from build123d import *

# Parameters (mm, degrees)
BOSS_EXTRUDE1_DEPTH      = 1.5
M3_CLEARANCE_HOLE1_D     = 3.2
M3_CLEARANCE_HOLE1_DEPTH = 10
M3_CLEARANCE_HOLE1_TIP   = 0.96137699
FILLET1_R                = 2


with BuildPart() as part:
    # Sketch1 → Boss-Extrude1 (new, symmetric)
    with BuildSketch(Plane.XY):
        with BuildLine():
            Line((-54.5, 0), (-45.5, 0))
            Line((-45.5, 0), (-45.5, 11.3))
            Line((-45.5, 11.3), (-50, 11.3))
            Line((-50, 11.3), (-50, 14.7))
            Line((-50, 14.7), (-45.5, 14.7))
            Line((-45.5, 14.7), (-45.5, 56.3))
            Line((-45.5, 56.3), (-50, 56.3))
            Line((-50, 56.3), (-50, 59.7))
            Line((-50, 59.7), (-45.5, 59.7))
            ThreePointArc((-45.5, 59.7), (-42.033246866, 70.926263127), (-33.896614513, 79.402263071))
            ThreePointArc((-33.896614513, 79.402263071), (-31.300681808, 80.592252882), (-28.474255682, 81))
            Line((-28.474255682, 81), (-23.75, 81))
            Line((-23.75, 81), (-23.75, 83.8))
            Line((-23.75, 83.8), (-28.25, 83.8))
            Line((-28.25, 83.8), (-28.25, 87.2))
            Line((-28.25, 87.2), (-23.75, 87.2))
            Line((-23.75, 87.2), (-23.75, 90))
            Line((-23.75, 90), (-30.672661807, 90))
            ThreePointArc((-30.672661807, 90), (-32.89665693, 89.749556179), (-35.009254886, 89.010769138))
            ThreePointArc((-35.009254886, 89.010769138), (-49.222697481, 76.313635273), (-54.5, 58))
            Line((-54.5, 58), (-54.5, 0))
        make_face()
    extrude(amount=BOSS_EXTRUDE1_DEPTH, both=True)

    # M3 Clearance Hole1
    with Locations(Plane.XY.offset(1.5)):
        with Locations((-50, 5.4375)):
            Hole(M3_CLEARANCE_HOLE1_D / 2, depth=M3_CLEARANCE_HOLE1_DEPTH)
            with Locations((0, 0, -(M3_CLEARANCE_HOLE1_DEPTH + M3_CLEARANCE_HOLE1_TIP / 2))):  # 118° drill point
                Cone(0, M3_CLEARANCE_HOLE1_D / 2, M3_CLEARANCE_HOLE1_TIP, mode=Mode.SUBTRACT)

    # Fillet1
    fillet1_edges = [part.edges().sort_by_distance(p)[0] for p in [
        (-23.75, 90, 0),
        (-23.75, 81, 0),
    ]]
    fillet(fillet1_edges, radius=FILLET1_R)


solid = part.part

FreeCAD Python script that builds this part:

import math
import FreeCAD as App
import Part
import Sketcher
from FreeCAD import Vector


def edges_at(feature, points):
    """Names of the edges that pass closest to the given points."""
    edges = feature.Shape.Edges
    near = lambda p: min(range(len(edges)), key=lambda i: edges[i].distToShape(Part.Vertex(*p))[0])
    return sorted({f"Edge{near(p) + 1}" for p in points})

doc = App.newDocument("Part")
params = doc.addObject("Spreadsheet::Sheet", "Params")
for row, (alias, value) in enumerate([
    ("sketch1_radius", "10 mm"),
    ("sketch1_width", "9 mm"),
    ("sketch1_height", "58 mm"),
    ("sketch1_width2", "4.5 mm"),
    ("sketch1_height2", "11.3 mm"),
    ("pad1_length", "3 mm"),
    ("sketch2_diameter", "3.2 mm"),
    ("hole_diameter", "3.2 mm"),
    ("hole_depth", "10 mm"),
    ("fillet_radius", "2 mm"),
], start=1):
    params.set(f"A{row}", alias)
    params.set(f"B{row}", "=" + value)
    params.setAlias(f"B{row}", alias)

body = doc.addObject("PartDesign::Body", "Body")

# Sketch on XY plane
sketch1 = doc.addObject("Sketcher::SketchObject", "Sketch")
body.addObject(sketch1)
sketch1.AttachmentSupport = (doc.XY_Plane, [""])
sketch1.MapMode = "FlatFace"
sketch1.addGeometry([
    Part.LineSegment(Vector(-54.5, 0, 0), Vector(-45.5, 0, 0)),  # 0
    Part.LineSegment(Vector(-45.5, 0, 0), Vector(-45.5, 11.3, 0)),  # 1
    Part.LineSegment(Vector(-45.5, 11.3, 0), Vector(-50, 11.3, 0)),  # 2
    Part.LineSegment(Vector(-50, 11.3, 0), Vector(-50, 14.7, 0)),  # 3
    Part.LineSegment(Vector(-50, 14.7, 0), Vector(-45.5, 14.7, 0)),  # 4
    Part.LineSegment(Vector(-45.5, 14.7, 0), Vector(-45.5, 56.3, 0)),  # 5
    Part.LineSegment(Vector(-45.5, 56.3, 0), Vector(-50, 56.3, 0)),  # 6
    Part.LineSegment(Vector(-50, 56.3, 0), Vector(-50, 59.7, 0)),  # 7
    Part.LineSegment(Vector(-50, 59.7, 0), Vector(-45.5, 59.7, 0)),  # 8
    Part.ArcOfCircle(Part.Circle(Vector(-20.1, 58, 0), Vector(0, 0, 1), 25.5), math.radians(123), math.radians(176)),  # 9
    Part.ArcOfCircle(Part.Circle(Vector(-28.5, 71, 0), Vector(0, 0, 1), 10), math.radians(90), math.radians(123)),  # 10
    Part.LineSegment(Vector(-28.5, 81, 0), Vector(-23.8, 81, 0)),  # 11
    Part.LineSegment(Vector(-23.8, 81, 0), Vector(-23.8, 83.8, 0)),  # 12
    Part.LineSegment(Vector(-23.8, 83.8, 0), Vector(-28.2, 83.8, 0)),  # 13
    Part.LineSegment(Vector(-28.2, 83.8, 0), Vector(-28.2, 87.2, 0)),  # 14
    Part.LineSegment(Vector(-28.2, 87.2, 0), Vector(-23.8, 87.2, 0)),  # 15
    Part.LineSegment(Vector(-23.8, 87.2, 0), Vector(-23.8, 90, 0)),  # 16
    Part.LineSegment(Vector(-23.8, 90, 0), Vector(-30.7, 90, 0)),  # 17
    Part.ArcOfCircle(Part.Circle(Vector(-30.7, 80, 0), Vector(0, 0, 1), 10), math.radians(90), math.radians(116)),  # 18
    Part.ArcOfCircle(Part.Circle(Vector(-20.1, 58, 0), Vector(0, 0, 1), 34.4), math.radians(116), math.radians(180)),  # 19
    Part.LineSegment(Vector(-54.5, 58, 0), Vector(-54.5, 0, 0)),  # 20
], False)
sketch1.addConstraint([
    Sketcher.Constraint("Coincident", 0, 2, 1, 1),
    Sketcher.Constraint("Coincident", 1, 2, 2, 1),
    Sketcher.Constraint("Coincident", 2, 2, 3, 1),
    Sketcher.Constraint("Coincident", 3, 2, 4, 1),
    Sketcher.Constraint("Coincident", 4, 2, 5, 1),
    Sketcher.Constraint("Coincident", 5, 2, 6, 1),
    Sketcher.Constraint("Coincident", 6, 2, 7, 1),
    Sketcher.Constraint("Coincident", 7, 2, 8, 1),
    Sketcher.Constraint("Coincident", 8, 2, 9, 2),
    Sketcher.Constraint("Tangent", 9, 1, 10, 2),
    Sketcher.Constraint("Tangent", 10, 1, 11, 1),
    Sketcher.Constraint("Coincident", 11, 2, 12, 1),
    Sketcher.Constraint("Coincident", 12, 2, 13, 1),
    Sketcher.Constraint("Coincident", 13, 2, 14, 1),
    Sketcher.Constraint("Coincident", 14, 2, 15, 1),
    Sketcher.Constraint("Coincident", 15, 2, 16, 1),
    Sketcher.Constraint("Coincident", 16, 2, 17, 1),
    Sketcher.Constraint("Tangent", 17, 2, 18, 1),
    Sketcher.Constraint("Tangent", 18, 2, 19, 1),
    Sketcher.Constraint("Tangent", 19, 2, 20, 1),
    Sketcher.Constraint("Coincident", 20, 2, 0, 1),
    Sketcher.Constraint("Horizontal", 0),
    Sketcher.Constraint("Vertical", 1),
    Sketcher.Constraint("Horizontal", 2),
    Sketcher.Constraint("Vertical", 3),
    Sketcher.Constraint("Horizontal", 4),
    Sketcher.Constraint("Vertical", 5),
    Sketcher.Constraint("Horizontal", 6),
    Sketcher.Constraint("Vertical", 7),
    Sketcher.Constraint("Horizontal", 8),
    Sketcher.Constraint("Horizontal", 11),
    Sketcher.Constraint("Vertical", 12),
    Sketcher.Constraint("Horizontal", 13),
    Sketcher.Constraint("Vertical", 14),
    Sketcher.Constraint("Horizontal", 15),
    Sketcher.Constraint("Vertical", 16),
    Sketcher.Constraint("Horizontal", 17),
    Sketcher.Constraint("Vertical", 20),
    Sketcher.Constraint("Coincident", 19, 3, 9, 3),
    Sketcher.Constraint("Equal", 10, 18),
    Sketcher.Constraint("PointOnObject", 0, 2, -1),
    Sketcher.Constraint("Vertical", 1, 2, 4, 2),
    Sketcher.Constraint("Vertical", 3, 2, 6, 2),
    Sketcher.Constraint("Vertical", 5, 2, 8, 2),
    Sketcher.Constraint("Vertical", 12, 2, 15, 2),
    Sketcher.Constraint("Equal", 8, 13),
    Sketcher.Constraint("Equal", 3, 7),
    Sketcher.Constraint("Equal", 7, 14),
    Sketcher.Constraint("Equal", 12, 16),
    Sketcher.Constraint("Radius", 10, 10.0),
    Sketcher.Constraint("DistanceX", 0, 1, 0, 2, 9.0),
    Sketcher.Constraint("DistanceY", 20, 2, 20, 1, 58.0),
    Sketcher.Constraint("DistanceX", 2, 2, 2, 1, 4.5),
    Sketcher.Constraint("DistanceY", 1, 1, 1, 2, 11.3),
    Sketcher.Constraint("DistanceY", 3, 1, 3, 2, 3.4),
    Sketcher.Constraint("DistanceY", 5, 1, 5, 2, 41.6),
    Sketcher.Constraint("DistanceY", 12, 1, 12, 2, 2.8),
    Sketcher.Constraint("DistanceY", -1, 1, 10, 3, 71.0),
    Sketcher.Constraint("DistanceX", 2, 2, -1, 1, 50.0),
    Sketcher.Constraint("DistanceX", 11, 2, -1, 1, 23.75),
    Sketcher.Constraint("Radius", 19, 34.41523),
])
sketch1.setExpression("Constraints[49]", "Params.sketch1_radius")
sketch1.setExpression("Constraints[50]", "Params.sketch1_width")
sketch1.setExpression("Constraints[51]", "Params.sketch1_height")
sketch1.setExpression("Constraints[52]", "Params.sketch1_width2")
sketch1.setExpression("Constraints[53]", "Params.sketch1_height2")
pad1 = doc.addObject("PartDesign::Pad", "Pad")
body.addObject(pad1)
pad1.Profile = sketch1
pad1.setExpression("Length", "Params.pad1_length")
pad1.Midplane = True

# Sketch on XY plane
sketch2 = doc.addObject("Sketcher::SketchObject", "Sketch001")
body.addObject(sketch2)
sketch2.AttachmentSupport = (doc.XY_Plane, [""])
sketch2.MapMode = "FlatFace"
sketch2.AttachmentOffset = App.Placement(Vector(0, 0, 1.5), App.Rotation())
sketch2.addGeometry(Part.Circle(Vector(-50, 5.4, 0), Vector(0, 0, 1), 1.6), False)
sketch2.addConstraint([
    Sketcher.Constraint("Diameter", 0, 3.2),
    Sketcher.Constraint("DistanceX", 0, 3, -1, 1, 50.0),
    Sketcher.Constraint("DistanceY", -1, 1, 0, 3, 5.4375),
])
sketch2.setExpression("Constraints[0]", "Params.sketch2_diameter")
doc.recompute()
hole = doc.addObject("PartDesign::Hole", "Hole")
body.addObject(hole)
hole.Profile = sketch2
hole.ThreadType = "None"
hole.setExpression("Diameter", "Params.hole_diameter")
hole.DepthType = "Dimension"
hole.setExpression("Depth", "Params.hole_depth")
hole.DrillPoint = "Angled"
hole.DrillPointAngle = 118
doc.recompute()

fillet = doc.addObject("PartDesign::Fillet", "Fillet")
body.addObject(fillet)
fillet.Base = (hole, edges_at(hole, [(-23.75, 90, 0), (-23.75, 81, 0)]))
fillet.setExpression("Radius", "Params.fillet_radius")

doc.recompute()
